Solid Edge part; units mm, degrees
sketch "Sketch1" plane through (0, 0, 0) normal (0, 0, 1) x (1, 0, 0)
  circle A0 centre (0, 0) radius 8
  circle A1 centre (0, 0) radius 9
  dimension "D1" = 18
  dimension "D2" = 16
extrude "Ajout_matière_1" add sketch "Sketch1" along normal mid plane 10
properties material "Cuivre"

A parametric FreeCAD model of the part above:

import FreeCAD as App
import Part
import Sketcher

doc = App.newDocument("Part")
body = doc.addObject("PartDesign::Body", "Body")

# Sketch on XY plane
sketch1 = body.newObject("Sketcher::SketchObject", "Sketch")
sketch1.AttachmentSupport = (doc.getObject("XY_Plane"), [""])
sketch1.MapMode = "FlatFace"
sketch1.addGeometry(Part.Circle(App.Vector(0, 0, 0), App.Vector(0, 0, 1), 9), False)
sketch1.addGeometry(Part.Circle(App.Vector(0, 0, 0), App.Vector(0, 0, 1), 8), False)
sketch1.addConstraint(Sketcher.Constraint("Coincident", 0, 3, -1, 1))
sketch1.addConstraint(Sketcher.Constraint("Coincident", 1, 3, -1, 1))
sketch1.addConstraint(Sketcher.Constraint("Diameter", 0, 18.0))
sketch1.addConstraint(Sketcher.Constraint("Diameter", 1, 16.0))
pad1 = body.newObject("PartDesign::Pad", "Pad")
pad1.Profile = sketch1
pad1.Length = 10
pad1.Midplane = True

doc.recompute()
